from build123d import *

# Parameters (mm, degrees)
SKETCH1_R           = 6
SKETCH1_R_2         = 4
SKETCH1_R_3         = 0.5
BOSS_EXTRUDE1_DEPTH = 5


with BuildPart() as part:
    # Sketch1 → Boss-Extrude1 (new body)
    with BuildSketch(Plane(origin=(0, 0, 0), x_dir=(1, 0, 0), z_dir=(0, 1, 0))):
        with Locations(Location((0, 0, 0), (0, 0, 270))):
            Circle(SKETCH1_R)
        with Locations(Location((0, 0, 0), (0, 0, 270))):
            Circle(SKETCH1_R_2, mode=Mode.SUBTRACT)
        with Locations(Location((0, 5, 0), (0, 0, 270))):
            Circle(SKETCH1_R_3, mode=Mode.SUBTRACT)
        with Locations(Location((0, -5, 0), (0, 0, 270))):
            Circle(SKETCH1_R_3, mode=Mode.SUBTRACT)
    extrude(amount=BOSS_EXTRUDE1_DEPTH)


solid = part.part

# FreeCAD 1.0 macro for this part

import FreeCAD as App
import Part
import Sketcher

doc = App.newDocument("Part")
body = doc.addObject("PartDesign::Body", "Body")

# Sketch on XZ plane
sketch1 = body.newObject("Sketcher::SketchObject", "Sketch")
sketch1.AttachmentSupport = (doc.getObject("XZ_Plane"), [""])
sketch1.MapMode = "FlatFace"
sketch1.addGeometry([
    Part.Circle(App.Vector(0, 0, 0), App.Vector(0, 0, 1), 6),
    Part.Circle(App.Vector(0, -5, 0), App.Vector(0, 0, 1), 0.5),
    Part.Circle(App.Vector(0, 0, 0), App.Vector(0, 0, 1), 4),
    Part.Circle(App.Vector(0, 5, 0), App.Vector(0, 0, 1), 0.5),
], False)
sketch1.addConstraint([
    Sketcher.Constraint("Coincident", 0, 3, -1, 1),
    Sketcher.Constraint("Coincident", 2, 3, -1, 1),
    Sketcher.Constraint("Equal", 1, 3),
    Sketcher.Constraint("Symmetric", 1, 3, 3, 3, -1, 1),
    Sketcher.Constraint("PointOnObject", 1, 3, -2),
    Sketcher.Constraint("Diameter", 0, 12.0),
    Sketcher.Constraint("Diameter", 1, 1.0),
    Sketcher.Constraint("Diameter", 2, 8.0),
    Sketcher.Constraint("DistanceY", 1, 3, -1, 1, 5.0),
])
pad1 = body.newObject("PartDesign::Pad", "Pad")
pad1.Profile = sketch1
pad1.Length = 5
pad1.Reversed = True

doc.recompute()
